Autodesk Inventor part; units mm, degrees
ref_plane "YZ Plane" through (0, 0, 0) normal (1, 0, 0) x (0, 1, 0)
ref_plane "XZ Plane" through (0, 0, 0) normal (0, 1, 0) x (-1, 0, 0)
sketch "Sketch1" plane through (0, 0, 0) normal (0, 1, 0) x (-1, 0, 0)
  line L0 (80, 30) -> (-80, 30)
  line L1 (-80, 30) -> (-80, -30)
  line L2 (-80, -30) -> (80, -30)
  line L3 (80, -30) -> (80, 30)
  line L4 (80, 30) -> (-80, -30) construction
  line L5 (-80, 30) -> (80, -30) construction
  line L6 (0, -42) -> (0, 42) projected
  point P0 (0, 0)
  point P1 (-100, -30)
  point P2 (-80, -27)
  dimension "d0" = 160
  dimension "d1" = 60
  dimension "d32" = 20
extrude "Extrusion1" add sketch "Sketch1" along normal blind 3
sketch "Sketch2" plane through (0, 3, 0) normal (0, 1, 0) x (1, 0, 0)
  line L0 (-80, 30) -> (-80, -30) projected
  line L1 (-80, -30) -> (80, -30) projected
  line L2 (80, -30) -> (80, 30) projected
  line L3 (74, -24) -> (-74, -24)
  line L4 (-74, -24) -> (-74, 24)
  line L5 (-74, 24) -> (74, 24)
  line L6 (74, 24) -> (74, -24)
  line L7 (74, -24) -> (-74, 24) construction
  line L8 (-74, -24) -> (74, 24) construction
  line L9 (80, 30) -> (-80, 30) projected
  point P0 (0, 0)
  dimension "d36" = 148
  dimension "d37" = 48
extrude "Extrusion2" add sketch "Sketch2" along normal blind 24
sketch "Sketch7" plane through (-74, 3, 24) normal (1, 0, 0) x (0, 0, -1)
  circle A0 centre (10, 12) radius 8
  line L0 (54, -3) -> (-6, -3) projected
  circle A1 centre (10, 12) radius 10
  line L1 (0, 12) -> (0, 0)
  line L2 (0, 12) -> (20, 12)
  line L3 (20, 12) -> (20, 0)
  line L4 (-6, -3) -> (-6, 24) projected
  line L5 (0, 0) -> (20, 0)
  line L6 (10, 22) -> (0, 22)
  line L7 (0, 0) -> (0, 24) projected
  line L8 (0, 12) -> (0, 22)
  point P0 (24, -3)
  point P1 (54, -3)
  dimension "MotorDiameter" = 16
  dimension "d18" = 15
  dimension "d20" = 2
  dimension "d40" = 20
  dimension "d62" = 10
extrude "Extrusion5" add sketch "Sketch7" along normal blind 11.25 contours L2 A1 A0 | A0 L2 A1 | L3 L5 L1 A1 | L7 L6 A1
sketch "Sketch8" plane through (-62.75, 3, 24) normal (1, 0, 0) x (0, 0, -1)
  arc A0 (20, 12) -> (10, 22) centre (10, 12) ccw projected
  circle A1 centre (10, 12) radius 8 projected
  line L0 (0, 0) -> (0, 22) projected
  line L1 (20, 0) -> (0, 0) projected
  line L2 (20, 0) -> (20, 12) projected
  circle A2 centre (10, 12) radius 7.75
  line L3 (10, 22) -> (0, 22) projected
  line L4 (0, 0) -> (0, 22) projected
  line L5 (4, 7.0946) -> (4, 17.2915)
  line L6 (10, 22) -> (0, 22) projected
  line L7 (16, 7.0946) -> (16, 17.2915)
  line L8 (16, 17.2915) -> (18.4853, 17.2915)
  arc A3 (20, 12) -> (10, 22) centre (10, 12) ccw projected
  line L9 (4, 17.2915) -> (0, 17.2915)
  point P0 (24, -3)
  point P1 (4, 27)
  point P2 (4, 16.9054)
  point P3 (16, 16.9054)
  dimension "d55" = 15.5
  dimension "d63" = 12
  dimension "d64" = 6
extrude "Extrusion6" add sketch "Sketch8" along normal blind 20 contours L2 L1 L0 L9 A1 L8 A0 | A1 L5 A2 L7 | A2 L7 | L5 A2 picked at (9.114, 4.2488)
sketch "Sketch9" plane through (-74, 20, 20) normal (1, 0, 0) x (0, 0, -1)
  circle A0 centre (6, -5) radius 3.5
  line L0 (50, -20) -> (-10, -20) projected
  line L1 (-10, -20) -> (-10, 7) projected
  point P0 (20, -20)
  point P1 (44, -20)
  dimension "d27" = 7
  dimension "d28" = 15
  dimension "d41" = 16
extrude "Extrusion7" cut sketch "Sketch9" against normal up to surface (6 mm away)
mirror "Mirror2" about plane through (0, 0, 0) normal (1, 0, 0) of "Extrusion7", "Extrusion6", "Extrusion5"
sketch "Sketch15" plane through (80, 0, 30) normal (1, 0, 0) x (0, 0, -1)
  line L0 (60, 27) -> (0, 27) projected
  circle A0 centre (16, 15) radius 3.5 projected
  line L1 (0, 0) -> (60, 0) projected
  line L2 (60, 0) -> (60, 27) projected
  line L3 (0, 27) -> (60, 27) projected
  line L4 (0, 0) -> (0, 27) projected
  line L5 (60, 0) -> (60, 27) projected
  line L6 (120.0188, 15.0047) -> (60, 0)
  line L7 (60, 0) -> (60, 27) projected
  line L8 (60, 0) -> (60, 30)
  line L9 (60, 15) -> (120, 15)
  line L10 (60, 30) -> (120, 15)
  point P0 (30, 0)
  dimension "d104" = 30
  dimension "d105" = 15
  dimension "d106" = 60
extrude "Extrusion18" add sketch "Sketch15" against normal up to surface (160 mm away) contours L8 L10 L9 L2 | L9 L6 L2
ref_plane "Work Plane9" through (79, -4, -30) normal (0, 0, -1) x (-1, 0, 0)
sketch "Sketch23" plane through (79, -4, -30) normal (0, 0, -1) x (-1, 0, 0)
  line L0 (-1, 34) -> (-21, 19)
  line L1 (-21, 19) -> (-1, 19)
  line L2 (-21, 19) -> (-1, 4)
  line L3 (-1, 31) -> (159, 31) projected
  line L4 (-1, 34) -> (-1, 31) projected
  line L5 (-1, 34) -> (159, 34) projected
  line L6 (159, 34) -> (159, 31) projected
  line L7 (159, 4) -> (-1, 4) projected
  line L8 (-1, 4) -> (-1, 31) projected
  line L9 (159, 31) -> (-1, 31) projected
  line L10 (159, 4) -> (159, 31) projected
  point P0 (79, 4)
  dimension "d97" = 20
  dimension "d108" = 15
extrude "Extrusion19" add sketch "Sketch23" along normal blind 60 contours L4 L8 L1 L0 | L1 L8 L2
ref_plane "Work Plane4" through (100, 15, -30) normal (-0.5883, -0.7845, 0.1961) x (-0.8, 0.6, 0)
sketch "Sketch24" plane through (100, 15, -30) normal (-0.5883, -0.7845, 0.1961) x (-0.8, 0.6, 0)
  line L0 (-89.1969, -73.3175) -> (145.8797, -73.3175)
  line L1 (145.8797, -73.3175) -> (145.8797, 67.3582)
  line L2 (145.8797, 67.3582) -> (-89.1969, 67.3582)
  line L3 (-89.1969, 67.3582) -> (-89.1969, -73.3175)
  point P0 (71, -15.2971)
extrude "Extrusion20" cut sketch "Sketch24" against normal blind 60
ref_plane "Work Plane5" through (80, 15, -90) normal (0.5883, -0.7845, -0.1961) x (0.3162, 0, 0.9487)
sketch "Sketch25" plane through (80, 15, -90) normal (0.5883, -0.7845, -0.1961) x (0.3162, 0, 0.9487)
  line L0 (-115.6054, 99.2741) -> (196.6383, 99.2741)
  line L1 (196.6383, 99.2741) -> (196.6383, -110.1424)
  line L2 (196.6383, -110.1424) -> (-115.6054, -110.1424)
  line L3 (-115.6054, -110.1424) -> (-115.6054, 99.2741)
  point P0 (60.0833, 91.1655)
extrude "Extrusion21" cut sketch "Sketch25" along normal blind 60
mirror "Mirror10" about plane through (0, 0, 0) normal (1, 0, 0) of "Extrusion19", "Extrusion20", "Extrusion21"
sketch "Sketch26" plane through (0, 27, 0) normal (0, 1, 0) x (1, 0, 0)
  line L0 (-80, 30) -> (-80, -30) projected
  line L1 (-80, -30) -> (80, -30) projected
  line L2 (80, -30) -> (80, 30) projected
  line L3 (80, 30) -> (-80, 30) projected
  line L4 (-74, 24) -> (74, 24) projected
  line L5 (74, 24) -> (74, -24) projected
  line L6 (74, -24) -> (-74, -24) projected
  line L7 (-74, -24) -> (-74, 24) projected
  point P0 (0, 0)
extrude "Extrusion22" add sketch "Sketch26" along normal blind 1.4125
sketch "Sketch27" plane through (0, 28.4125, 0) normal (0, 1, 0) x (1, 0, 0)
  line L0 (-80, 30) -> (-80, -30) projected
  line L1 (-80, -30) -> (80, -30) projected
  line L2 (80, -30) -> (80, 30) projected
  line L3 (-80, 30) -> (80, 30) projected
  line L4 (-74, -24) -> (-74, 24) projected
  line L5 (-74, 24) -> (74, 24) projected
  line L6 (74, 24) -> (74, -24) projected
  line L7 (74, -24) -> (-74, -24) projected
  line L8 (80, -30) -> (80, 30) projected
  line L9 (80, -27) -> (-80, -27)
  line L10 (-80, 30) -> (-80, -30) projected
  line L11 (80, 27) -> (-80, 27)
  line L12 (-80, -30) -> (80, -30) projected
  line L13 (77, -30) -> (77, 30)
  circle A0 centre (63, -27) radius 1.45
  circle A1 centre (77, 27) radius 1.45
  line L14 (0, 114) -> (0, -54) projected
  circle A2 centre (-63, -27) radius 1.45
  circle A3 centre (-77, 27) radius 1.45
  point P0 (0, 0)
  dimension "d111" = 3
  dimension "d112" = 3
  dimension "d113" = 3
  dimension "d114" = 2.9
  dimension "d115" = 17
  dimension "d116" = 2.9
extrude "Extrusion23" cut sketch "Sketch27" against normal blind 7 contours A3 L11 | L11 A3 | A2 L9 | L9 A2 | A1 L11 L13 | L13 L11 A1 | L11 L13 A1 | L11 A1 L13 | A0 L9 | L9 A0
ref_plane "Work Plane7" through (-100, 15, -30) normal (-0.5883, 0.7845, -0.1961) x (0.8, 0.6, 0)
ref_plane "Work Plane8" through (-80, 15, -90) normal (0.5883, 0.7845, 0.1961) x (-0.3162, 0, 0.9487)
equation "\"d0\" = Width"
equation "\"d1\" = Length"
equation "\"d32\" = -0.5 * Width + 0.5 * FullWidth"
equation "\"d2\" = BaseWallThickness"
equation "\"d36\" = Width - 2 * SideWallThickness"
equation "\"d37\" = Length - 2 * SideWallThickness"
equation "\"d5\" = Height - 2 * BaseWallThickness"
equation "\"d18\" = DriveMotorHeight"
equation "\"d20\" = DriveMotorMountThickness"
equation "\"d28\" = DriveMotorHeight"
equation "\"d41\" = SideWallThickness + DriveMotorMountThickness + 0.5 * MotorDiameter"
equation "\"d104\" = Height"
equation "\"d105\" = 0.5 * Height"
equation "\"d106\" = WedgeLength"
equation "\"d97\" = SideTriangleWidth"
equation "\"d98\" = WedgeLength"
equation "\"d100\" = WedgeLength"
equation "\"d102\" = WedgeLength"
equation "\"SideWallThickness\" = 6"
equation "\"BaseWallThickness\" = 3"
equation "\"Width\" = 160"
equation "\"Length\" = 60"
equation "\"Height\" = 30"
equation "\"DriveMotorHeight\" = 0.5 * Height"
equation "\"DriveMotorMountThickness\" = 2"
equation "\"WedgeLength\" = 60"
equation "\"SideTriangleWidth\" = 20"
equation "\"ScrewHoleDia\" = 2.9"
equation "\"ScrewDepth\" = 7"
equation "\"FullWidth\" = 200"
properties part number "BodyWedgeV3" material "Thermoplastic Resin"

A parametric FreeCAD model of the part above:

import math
import FreeCAD as App
import Part
import Sketcher

V = App.Vector
Q = App.Units.Quantity


def add_polygon(sketch, points):
    """Adds a closed chain of lines whose ends are joined by coincident constraints."""
    first, n = sketch.GeometryCount, len(points)
    for a, b in zip(points, points[1:] + points[:1]):
        sketch.addGeometry(Part.LineSegment(App.Vector(*a, 0), App.Vector(*b, 0)), False)
    for i in range(n):
        sketch.addConstraint(Sketcher.Constraint("Coincident", first + i, 2, first + (i + 1) % n, 1))

doc = App.newDocument("Part")
params = doc.addObject("Spreadsheet::Sheet", "Params")
for row, (alias, value) in enumerate([
    ("sketch1_width", "160 mm"),
    ("sketch1_height", "60 mm"),
    ("pad1_length", "3 mm"),
    ("sketch2_width", "148 mm"),
    ("sketch2_height", "48 mm"),
    ("sketch2_width2", "160 mm"),
    ("sketch2_height2", "60 mm"),
    ("pad2_length", "24 mm"),
    ("sketch3_diameter", "16 mm"),
    ("sketch3_radius", "10 mm"),
    ("sketch3_height", "10 mm"),
    ("sketch3_width", "22 mm"),
    ("pad3_length", "11.25 mm"),
    ("sketch4_width", "12 mm"),
    ("sketch4_radius", "7.75 mm"),
    ("sketch4_radius2", "10 mm"),
    ("sketch4_height", "4 mm"),
    ("pad4_length", "20 mm"),
    ("sketch5_diameter", "7 mm"),
    ("pocket1_length", "6 mm"),
    ("sketch6_width", "30 mm"),
    ("pad5_length", "160 mm"),
    ("pad6_length", "60 mm"),
    ("pocket2_length", "60 mm"),
    ("pocket3_length", "60 mm"),
    ("sketch10_width", "160 mm"),
    ("sketch10_width2", "148 mm"),
    ("sketch10_height", "60 mm"),
    ("sketch10_height2", "48 mm"),
    ("pad7_length", "1.4125 mm"),
    ("sketch11_diameter", "2.9 mm"),
    ("pocket4_length", "7 mm"),
], start=1):
    params.set(f"A{row}", alias)
    params.set(f"B{row}", "=" + value)
    params.setAlias(f"B{row}", alias)

body = doc.addObject("PartDesign::Body", "Body")

sketch1 = body.newObject("Sketcher::SketchObject", "Sketch")
sketch1.AttachmentSupport = (doc.getObject("XZ_Plane"), [""])
sketch1.MapMode = "FlatFace"
add_polygon(sketch1, [(-80, -30), (-80, 30), (80, 30), (80, -30)])
sketch1.addConstraint([
    Sketcher.Constraint("Vertical", 0),
    Sketcher.Constraint("Horizontal", 1),
    Sketcher.Constraint("Vertical", 2),
    Sketcher.Constraint("Horizontal", 3),
    Sketcher.Constraint("Symmetric", 0, 2, 2, 2, -1, 1),
    Sketcher.Constraint("DistanceX", 1, 1, 1, 2, Q("160 mm")),
    Sketcher.Constraint("DistanceY", 0, 1, 0, 2, Q("60 mm")),
])
sketch1.setExpression("Constraints[9]", "Params.sketch1_width")
sketch1.setExpression("Constraints[10]", "Params.sketch1_height")
pad1 = body.newObject("PartDesign::Pad", "Pad")
pad1.Profile = sketch1
pad1.setExpression("Length", "Params.pad1_length")
pad1.Reversed = True

sketch2 = body.newObject("Sketcher::SketchObject", "Sketch001")
sketch2.AttachmentSupport = (doc.getObject("XZ_Plane"), [""])
sketch2.MapMode = "FlatFace"
sketch2.AttachmentOffset = App.Placement(V(0, 0, -3), App.Rotation())
add_polygon(sketch2, [(80, -30), (-80, -30), (-80, 30), (80, 30)])
add_polygon(sketch2, [(74, -24), (74, 24), (-74, 24), (-74, -24)])
sketch2.addConstraint([
    Sketcher.Constraint("Horizontal", 0),
    Sketcher.Constraint("Vertical", 1),
    Sketcher.Constraint("Horizontal", 2),
    Sketcher.Constraint("Vertical", 3),
    Sketcher.Constraint("Vertical", 4),
    Sketcher.Constraint("Horizontal", 5),
    Sketcher.Constraint("Vertical", 6),
    Sketcher.Constraint("Horizontal", 7),
    Sketcher.Constraint("Symmetric", 0, 2, 2, 2, -1, 1),
    Sketcher.Constraint("Symmetric", 4, 2, 6, 2, -1, 1),
    Sketcher.Constraint("DistanceX", 5, 2, 5, 1, Q("148 mm")),
    Sketcher.Constraint("DistanceY", 4, 1, 4, 2, Q("48 mm")),
    Sketcher.Constraint("DistanceX", 0, 2, 0, 1, Q("160 mm")),
    Sketcher.Constraint("DistanceY", 1, 1, 1, 2, Q("60 mm")),
])
sketch2.setExpression("Constraints[18]", "Params.sketch2_width")
sketch2.setExpression("Constraints[19]", "Params.sketch2_height")
sketch2.setExpression("Constraints[20]", "Params.sketch2_width2")
sketch2.setExpression("Constraints[21]", "Params.sketch2_height2")
pad2 = body.newObject("PartDesign::Pad", "Pad001")
pad2.Profile = sketch2
pad2.setExpression("Length", "Params.pad2_length")
pad2.Reversed = True

sketch3 = body.newObject("Sketcher::SketchObject", "Sketch002")
sketch3.AttachmentSupport = (doc.getObject("YZ_Plane"), [""])
sketch3.MapMode = "FlatFace"
sketch3.AttachmentOffset = App.Placement(V(0, 0, -74), App.Rotation())
sketch3.addGeometry([
    Part.ArcOfCircle(Part.Circle(V(15, 14, 0), V(0, 0, 1), 10), math.radians(-90), math.radians(0)),
    Part.LineSegment(V(25, 14, 0), V(25, 24, 0)),
    Part.LineSegment(V(25, 24, 0), V(3, 24, 0)),
    Part.LineSegment(V(3, 24, 0), V(3, 4, 0)),
    Part.LineSegment(V(3, 4, 0), V(15, 4, 0)),
    Part.Circle(V(15, 14, 0), V(0, 0, 1), 8),
], False)
sketch3.addConstraint([
    Sketcher.Constraint("Tangent", 0, 2, 1, 1),
    Sketcher.Constraint("Coincident", 1, 2, 2, 1),
    Sketcher.Constraint("Coincident", 2, 2, 3, 1),
    Sketcher.Constraint("Coincident", 3, 2, 4, 1),
    Sketcher.Constraint("Tangent", 4, 2, 0, 1),
    Sketcher.Constraint("Vertical", 1),
    Sketcher.Constraint("Horizontal", 2),
    Sketcher.Constraint("Vertical", 3),
    Sketcher.Constraint("Horizontal", 4),
    Sketcher.Constraint("Coincident", 5, 3, 0, 3),
    Sketcher.Constraint("Diameter", 5, Q("16 mm")),
    Sketcher.Constraint("Radius", 0, Q("10 mm")),
    Sketcher.Constraint("DistanceY", 1, 1, 1, 2, Q("10 mm")),
    Sketcher.Constraint("DistanceX", -1, 1, 0, 3, Q("15 mm")),
    Sketcher.Constraint("DistanceX", 2, 2, 2, 1, Q("22 mm")),
    Sketcher.Constraint("DistanceY", -1, 1, 0, 3, Q("14 mm")),
])
sketch3.setExpression("Constraints[10]", "Params.sketch3_diameter")
sketch3.setExpression("Constraints[11]", "Params.sketch3_radius")
sketch3.setExpression("Constraints[12]", "Params.sketch3_height")
sketch3.setExpression("Constraints[14]", "Params.sketch3_width")
pad3 = body.newObject("PartDesign::Pad", "Pad002")
pad3.Profile = sketch3
pad3.setExpression("Length", "Params.pad3_length")

sketch4 = body.newObject("Sketcher::SketchObject", "Sketch003")
sketch4.AttachmentSupport = (doc.getObject("YZ_Plane"), [""])
sketch4.MapMode = "FlatFace"
sketch4.AttachmentOffset = App.Placement(V(0, 0, -62.75), App.Rotation())
sketch4.addGeometry([
    Part.LineSegment(V(3, 4, 0), V(15, 4, 0)),
    Part.ArcOfCircle(Part.Circle(V(15, 14, 0), V(0, 0, 1), 10), math.radians(-90), math.radians(-58.05201)),
    Part.LineSegment(V(20.2915, 5.5147, 0), V(20.2915, 8, 0)),
    Part.LineSegment(V(20.2915, 8, 0), V(10.0946, 8, 0)),
    Part.ArcOfCircle(Part.Circle(V(15, 14, 0), V(0, 0, 1), 7.75), math.radians(129.268288), math.radians(230.731712)),
    Part.LineSegment(V(10.0946, 20, 0), V(20.2915, 20, 0)),
    Part.LineSegment(V(20.2915, 20, 0), V(20.2915, 24, 0)),
    Part.LineSegment(V(20.2915, 24, 0), V(3, 24, 0)),
    Part.LineSegment(V(3, 24, 0), V(3, 4, 0)),
], False)
sketch4.addConstraint([
    Sketcher.Constraint("Tangent", 0, 2, 1, 1),
    Sketcher.Constraint("Coincident", 1, 2, 2, 1),
    Sketcher.Constraint("Coincident", 2, 2, 3, 1),
    Sketcher.Constraint("Coincident", 3, 2, 4, 2),
    Sketcher.Constraint("Coincident", 4, 1, 5, 1),
    Sketcher.Constraint("Coincident", 5, 2, 6, 1),
    Sketcher.Constraint("Coincident", 6, 2, 7, 1),
    Sketcher.Constraint("Coincident", 7, 2, 8, 1),
    Sketcher.Constraint("Coincident", 8, 2, 0, 1),
    Sketcher.Constraint("Horizontal", 0),
    Sketcher.Constraint("Vertical", 2),
    Sketcher.Constraint("Horizontal", 3),
    Sketcher.Constraint("Horizontal", 5),
    Sketcher.Constraint("Vertical", 6),
    Sketcher.Constraint("Horizontal", 7),
    Sketcher.Constraint("Vertical", 8),
    Sketcher.Constraint("Coincident", 4, 3, 1, 3),
    Sketcher.Constraint("Vertical", 3, 2, 4, 1),
    Sketcher.Constraint("Vertical", 2, 2, 5, 2),
    Sketcher.Constraint("DistanceX", 0, 1, 0, 2, Q("12 mm")),
    Sketcher.Constraint("Radius", 4, Q("7.75 mm")),
    Sketcher.Constraint("Radius", 1, Q("10 mm")),
    Sketcher.Constraint("DistanceY", 2, 2, 1, 3, Q("6 mm")),
    Sketcher.Constraint("DistanceY", 6, 1, 6, 2, Q("4 mm")),
    Sketcher.Constraint("DistanceX", -1, 1, 1, 3, Q("15 mm")),
    Sketcher.Constraint("DistanceY", -1, 1, 1, 3, Q("14 mm")),
    Sketcher.Constraint("DistanceX", 3, 2, 3, 1, Q("10.197 mm")),
])
sketch4.setExpression("Constraints[19]", "Params.sketch4_width")
sketch4.setExpression("Constraints[20]", "Params.sketch4_radius")
sketch4.setExpression("Constraints[21]", "Params.sketch4_radius2")
sketch4.setExpression("Constraints[23]", "Params.sketch4_height")
pad4 = body.newObject("PartDesign::Pad", "Pad003")
pad4.Profile = sketch4
pad4.setExpression("Length", "Params.pad4_length")

sketch5 = body.newObject("Sketcher::SketchObject", "Sketch004")
sketch5.AttachmentSupport = (doc.getObject("YZ_Plane"), [""])
sketch5.MapMode = "FlatFace"
sketch5.AttachmentOffset = App.Placement(V(0, 0, -74), App.Rotation())
sketch5.addGeometry(Part.Circle(V(15, 14, 0), V(0, 0, 1), 3.5), False)
sketch5.addConstraint([
    Sketcher.Constraint("Diameter", 0, Q("7 mm")),
    Sketcher.Constraint("DistanceX", -1, 1, 0, 3, Q("15 mm")),
    Sketcher.Constraint("DistanceY", -1, 1, 0, 3, Q("14 mm")),
])
sketch5.setExpression("Constraints[0]", "Params.sketch5_diameter")
pocket1 = body.newObject("PartDesign::Pocket", "Pocket")
pocket1.Profile = sketch5
pocket1.setExpression("Length", "Params.pocket1_length")
doc.recompute()

mirrored = body.newObject("PartDesign::Mirrored", "Mirrored")
mirrored.Originals = [pocket1, pad4, pad3]
mirrored.MirrorPlane = (doc.getObject("YZ_Plane"), [""])
body.Tip = mirrored

sketch6 = body.newObject("Sketcher::SketchObject", "Sketch005")
sketch6.AttachmentSupport = (doc.getObject("YZ_Plane"), [""])
sketch6.MapMode = "FlatFace"
sketch6.AttachmentOffset = App.Placement(V(0, 0, 80), App.Rotation())
add_polygon(sketch6, [(30, -30), (0, -30), (15, -90)])
sketch6.addConstraint([
    Sketcher.Constraint("Horizontal", 0),
    Sketcher.Constraint("PointOnObject", 0, 2, -2),
    Sketcher.Constraint("Equal", 1, 2),
    Sketcher.Constraint("DistanceX", 0, 2, 0, 1, Q("30 mm")),
    Sketcher.Constraint("DistanceY", 0, 2, -1, 1, Q("30 mm")),
    Sketcher.Constraint("DistanceY", 1, 2, 0, 2, Q("60 mm")),
])
sketch6.setExpression("Constraints[6]", "Params.sketch6_width")
pad5 = body.newObject("PartDesign::Pad", "Pad004")
pad5.Profile = sketch6
pad5.setExpression("Length", "Params.pad5_length")
pad5.Reversed = True

sketch7 = body.newObject("Sketcher::SketchObject", "Sketch006")
sketch7.AttachmentSupport = (doc.getObject("XY_Plane"), [""])
sketch7.MapMode = "FlatFace"
sketch7.AttachmentOffset = App.Placement(V(0, 0, -30), App.Rotation())
add_polygon(sketch7, [(80, 30), (100, 15), (80, 0)])
sketch7.addConstraint([
    Sketcher.Constraint("Vertical", 2),
    Sketcher.Constraint("PointOnObject", 1, 2, -1),
    Sketcher.Constraint("Equal", 0, 1),
    Sketcher.Constraint("DistanceY", -1, 1, 0, 2, Q("15 mm")),
    Sketcher.Constraint("DistanceX", 1, 2, 0, 2, Q("20 mm")),
    Sketcher.Constraint("DistanceX", -1, 1, 0, 2, Q("100 mm")),
])
pad6 = body.newObject("PartDesign::Pad", "Pad005")
pad6.Profile = sketch7
pad6.setExpression("Length", "Params.pad6_length")
pad6.Reversed = True

sketch8 = body.newObject("Sketcher::SketchObject", "Sketch007")
sketch8.Placement = App.Placement(V(100, 15, -30), App.Rotation(V(-0.8000353, 0.599952931, 0.000011766), V(-0.11766045, -0.1568806, -0.980583753), V(-0.58830225, -0.784503001, 0.19610075), "ZXY"))
add_polygon(sketch8, [(-89.1969, 67.3582), (-89.1969, -73.3175), (145.8797, -73.3175), (145.8797, 67.3582)])
sketch8.addConstraint([
    Sketcher.Constraint("Vertical", 0),
    Sketcher.Constraint("Horizontal", 1),
    Sketcher.Constraint("Vertical", 2),
    Sketcher.Constraint("Horizontal", 3),
    Sketcher.Constraint("DistanceX", 1, 1, 1, 2, Q("235.0766 mm")),
    Sketcher.Constraint("DistanceY", 0, 2, 0, 1, Q("140.6757 mm")),
    Sketcher.Constraint("DistanceX", 0, 2, -1, 1, Q("89.197 mm")),
    Sketcher.Constraint("DistanceY", 0, 2, -1, 1, Q("73.3175 mm")),
])
pocket2 = body.newObject("PartDesign::Pocket", "Pocket001")
pocket2.Profile = sketch8
pocket2.setExpression("Length", "Params.pocket2_length")

sketch9 = body.newObject("Sketcher::SketchObject", "Sketch008")
sketch9.Placement = App.Placement(V(80, 15, -90), App.Rotation(V(0.316209303, -0.000015384, 0.948689452), V(-0.744252739, -0.620125021, 0.248058097), V(0.58830225, -0.784503001, -0.19610075), "ZXY"))
add_polygon(sketch9, [(196.6383, 99.2741), (-115.6054, 99.2741), (-115.6054, -110.1424), (196.6383, -110.1424)])
sketch9.addConstraint([
    Sketcher.Constraint("Horizontal", 0),
    Sketcher.Constraint("Vertical", 1),
    Sketcher.Constraint("Horizontal", 2),
    Sketcher.Constraint("Vertical", 3),
    Sketcher.Constraint("DistanceX", 0, 2, 0, 1, Q("312.2437 mm")),
    Sketcher.Constraint("DistanceY", 1, 2, 1, 1, Q("209.4165 mm")),
    Sketcher.Constraint("DistanceY", -1, 1, 0, 2, Q("99.274 mm")),
    Sketcher.Constraint("DistanceX", 0, 2, -1, 1, Q("115.6054 mm")),
])
pocket3 = body.newObject("PartDesign::Pocket", "Pocket002")
pocket3.Profile = sketch9
pocket3.setExpression("Length", "Params.pocket3_length")
pocket3.Reversed = True
doc.recompute()

mirrored2 = body.newObject("PartDesign::Mirrored", "Mirrored001")
mirrored2.Originals = [pad6, pocket2, pocket3]
mirrored2.MirrorPlane = (doc.getObject("YZ_Plane"), [""])
body.Tip = mirrored2

sketch10 = body.newObject("Sketcher::SketchObject", "Sketch009")
sketch10.AttachmentSupport = (doc.getObject("XZ_Plane"), [""])
sketch10.MapMode = "FlatFace"
sketch10.AttachmentOffset = App.Placement(V(0, 0, -27), App.Rotation())
add_polygon(sketch10, [(80, -30), (-80, -30), (-80, 30), (80, 30)])
add_polygon(sketch10, [(-74, 24), (-74, -24), (74, -24), (74, 24)])
sketch10.addConstraint([
    Sketcher.Constraint("Horizontal", 0),
    Sketcher.Constraint("Vertical", 1),
    Sketcher.Constraint("Horizontal", 2),
    Sketcher.Constraint("Vertical", 3),
    Sketcher.Constraint("Vertical", 4),
    Sketcher.Constraint("Horizontal", 5),
    Sketcher.Constraint("Vertical", 6),
    Sketcher.Constraint("Horizontal", 7),
    Sketcher.Constraint("Symmetric", 0, 2, 2, 2, -1, 1),
    Sketcher.Constraint("Symmetric", 4, 2, 6, 2, -1, 1),
    Sketcher.Constraint("DistanceX", 0, 2, 0, 1, Q("160 mm")),
    Sketcher.Constraint("DistanceX", 5, 1, 5, 2, Q("148 mm")),
    Sketcher.Constraint("DistanceY", 1, 1, 1, 2, Q("60 mm")),
    Sketcher.Constraint("DistanceY", 4, 2, 4, 1, Q("48 mm")),
])
sketch10.setExpression("Constraints[18]", "Params.sketch10_width")
sketch10.setExpression("Constraints[19]", "Params.sketch10_width2")
sketch10.setExpression("Constraints[20]", "Params.sketch10_height")
sketch10.setExpression("Constraints[21]", "Params.sketch10_height2")
pad7 = body.newObject("PartDesign::Pad", "Pad006")
pad7.Profile = sketch10
pad7.setExpression("Length", "Params.pad7_length")
pad7.Reversed = True

sketch11 = body.newObject("Sketcher::SketchObject", "Sketch010")
sketch11.AttachmentSupport = (doc.getObject("XZ_Plane"), [""])
sketch11.MapMode = "FlatFace"
sketch11.AttachmentOffset = App.Placement(V(0, 0, -28.4125), App.Rotation())
sketch11.addGeometry([
    Part.Circle(V(-77, -27, 0), V(0, 0, 1), 1.45),
    Part.Circle(V(-63, 27, 0), V(0, 0, 1), 1.45),
    Part.Circle(V(77, -27, 0), V(0, 0, 1), 1.45),
    Part.Circle(V(63, 27, 0), V(0, 0, 1), 1.45),
], False)
sketch11.addConstraint([
    Sketcher.Constraint("Equal", 0, 1),
    Sketcher.Constraint("Equal", 1, 2),
    Sketcher.Constraint("Equal", 2, 3),
    Sketcher.Constraint("Symmetric", 0, 3, 2, 3, -2),
    Sketcher.Constraint("Symmetric", 1, 3, 3, 3, -2),
    Sketcher.Constraint("Diameter", 0, Q("2.9 mm")),
    Sketcher.Constraint("DistanceX", 0, 3, -1, 1, Q("77 mm")),
    Sketcher.Constraint("DistanceY", 0, 3, -1, 1, Q("27 mm")),
    Sketcher.Constraint("DistanceX", 1, 3, -1, 1, Q("63 mm")),
    Sketcher.Constraint("DistanceY", -1, 1, 1, 3, Q("27 mm")),
])
sketch11.setExpression("Constraints[5]", "Params.sketch11_diameter")
pocket4 = body.newObject("PartDesign::Pocket", "Pocket003")
pocket4.Profile = sketch11
pocket4.setExpression("Length", "Params.pocket4_length")
pocket4.Reversed = True

doc.recompute()
